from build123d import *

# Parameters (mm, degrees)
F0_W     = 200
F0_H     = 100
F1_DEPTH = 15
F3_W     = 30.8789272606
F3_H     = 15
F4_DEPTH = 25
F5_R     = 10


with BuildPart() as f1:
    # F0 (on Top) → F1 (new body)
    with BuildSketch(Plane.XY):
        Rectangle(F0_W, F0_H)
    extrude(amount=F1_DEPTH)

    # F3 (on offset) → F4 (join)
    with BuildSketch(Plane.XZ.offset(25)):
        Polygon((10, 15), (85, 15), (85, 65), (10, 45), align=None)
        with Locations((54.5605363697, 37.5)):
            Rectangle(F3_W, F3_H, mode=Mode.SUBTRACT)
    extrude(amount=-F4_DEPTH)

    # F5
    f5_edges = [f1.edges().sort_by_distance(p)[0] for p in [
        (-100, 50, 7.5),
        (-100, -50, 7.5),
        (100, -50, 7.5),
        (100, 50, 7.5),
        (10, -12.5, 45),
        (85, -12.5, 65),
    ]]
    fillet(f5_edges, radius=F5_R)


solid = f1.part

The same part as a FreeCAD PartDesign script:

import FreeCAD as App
import Part
import Sketcher


def edges_at(feature, points):
    """Names of the edges that pass closest to the given points."""
    edges = feature.Shape.Edges
    near = lambda p: min(range(len(edges)), key=lambda i: edges[i].distToShape(Part.Vertex(*p))[0])
    return sorted({f"Edge{near(p) + 1}" for p in points})


def add_polygon(sketch, points):
    """Adds a closed chain of lines whose ends are joined by coincident constraints."""
    first, n = sketch.GeometryCount, len(points)
    for a, b in zip(points, points[1:] + points[:1]):
        sketch.addGeometry(Part.LineSegment(App.Vector(*a, 0), App.Vector(*b, 0)), False)
    for i in range(n):
        sketch.addConstraint(Sketcher.Constraint("Coincident", first + i, 2, first + (i + 1) % n, 1))

doc = App.newDocument("Part")
params = doc.addObject("Spreadsheet::Sheet", "Params")
for row, (alias, value) in enumerate([
    ("sketch1_width", "200 mm"),
    ("sketch1_height", "100 mm"),
    ("pad1_length", "15 mm"),
    ("sketch2_width", "75 mm"),
    ("sketch2_height", "50 mm"),
    ("sketch2_height2", "30 mm"),
    ("sketch2_height3", "15 mm"),
    ("pad2_length", "25 mm"),
    ("fillet_radius", "10 mm"),
], start=1):
    params.set(f"A{row}", alias)
    params.set(f"B{row}", "=" + value)
    params.setAlias(f"B{row}", alias)

body = doc.addObject("PartDesign::Body", "Body")

# Sketch on XY plane
sketch1 = body.newObject("Sketcher::SketchObject", "Sketch")
sketch1.AttachmentSupport = (doc.getObject("XY_Plane"), [""])
sketch1.MapMode = "FlatFace"
add_polygon(sketch1, [(-100, 50), (-100, -50), (100, -50), (100, 50)])  # lines 0-3
sketch1.addConstraint([
    Sketcher.Constraint("Vertical", 0),
    Sketcher.Constraint("Horizontal", 1),
    Sketcher.Constraint("Vertical", 2),
    Sketcher.Constraint("Horizontal", 3),
    Sketcher.Constraint("Symmetric", 0, 2, 2, 2, -1, 1),
    Sketcher.Constraint("DistanceX", 1, 1, 1, 2, 200.0),
    Sketcher.Constraint("DistanceY", 0, 2, 0, 1, 100.0),
])
sketch1.setExpression("Constraints[9]", "Params.sketch1_width")
sketch1.setExpression("Constraints[10]", "Params.sketch1_height")
pad1 = body.newObject("PartDesign::Pad", "Pad")
pad1.Profile = sketch1
pad1.setExpression("Length", "Params.pad1_length")

# Sketch on XZ plane
sketch2 = body.newObject("Sketcher::SketchObject", "Sketch001")
sketch2.AttachmentSupport = (doc.getObject("XZ_Plane"), [""])
sketch2.MapMode = "FlatFace"
sketch2.AttachmentOffset = App.Placement(App.Vector(0, 0, 25), App.Rotation())
add_polygon(sketch2, [(10, 15), (85, 15), (85, 65), (10, 45)])  # lines 0-3
add_polygon(sketch2, [(70, 30), (39, 30), (39, 45), (70, 45)])  # lines 4-7
sketch2.addConstraint([
    Sketcher.Constraint("Horizontal", 0),
    Sketcher.Constraint("Vertical", 1),
    Sketcher.Constraint("Vertical", 3),
    Sketcher.Constraint("Horizontal", 4),
    Sketcher.Constraint("Vertical", 5),
    Sketcher.Constraint("Horizontal", 6),
    Sketcher.Constraint("Vertical", 7),
    Sketcher.Constraint("Horizontal", 2, 2, 5, 2),
    Sketcher.Constraint("DistanceX", 0, 1, 0, 2, 75.0),
    Sketcher.Constraint("DistanceY", 1, 1, 1, 2, 50.0),
    Sketcher.Constraint("DistanceY", 3, 2, 3, 1, 30.0),
    Sketcher.Constraint("DistanceY", 5, 1, 5, 2, 15.0),
    Sketcher.Constraint("DistanceX", -1, 1, 0, 2, 85.0),
    Sketcher.Constraint("DistanceY", -1, 1, 0, 2, 15.0),
    Sketcher.Constraint("DistanceX", -1, 1, 6, 2, 70.0),
    Sketcher.Constraint("DistanceX", 4, 2, 4, 1, 30.878927),
])
sketch2.setExpression("Constraints[16]", "Params.sketch2_width")
sketch2.setExpression("Constraints[17]", "Params.sketch2_height")
sketch2.setExpression("Constraints[18]", "Params.sketch2_height2")
sketch2.setExpression("Constraints[19]", "Params.sketch2_height3")
pad2 = body.newObject("PartDesign::Pad", "Pad001")
pad2.Profile = sketch2
pad2.setExpression("Length", "Params.pad2_length")
pad2.Reversed = True
doc.recompute()

fillet = body.newObject("PartDesign::Fillet", "Fillet")
fillet.Base = (pad2, edges_at(pad2, [
    (-100, 50, 7.5),
    (-100, -50, 7.5),
    (100, -50, 7.5),
    (100, 50, 7.5),
    (10, -12.5, 45),
    (85, -12.5, 65),
]))
fillet.setExpression("Radius", "Params.fillet_radius")

doc.recompute()
